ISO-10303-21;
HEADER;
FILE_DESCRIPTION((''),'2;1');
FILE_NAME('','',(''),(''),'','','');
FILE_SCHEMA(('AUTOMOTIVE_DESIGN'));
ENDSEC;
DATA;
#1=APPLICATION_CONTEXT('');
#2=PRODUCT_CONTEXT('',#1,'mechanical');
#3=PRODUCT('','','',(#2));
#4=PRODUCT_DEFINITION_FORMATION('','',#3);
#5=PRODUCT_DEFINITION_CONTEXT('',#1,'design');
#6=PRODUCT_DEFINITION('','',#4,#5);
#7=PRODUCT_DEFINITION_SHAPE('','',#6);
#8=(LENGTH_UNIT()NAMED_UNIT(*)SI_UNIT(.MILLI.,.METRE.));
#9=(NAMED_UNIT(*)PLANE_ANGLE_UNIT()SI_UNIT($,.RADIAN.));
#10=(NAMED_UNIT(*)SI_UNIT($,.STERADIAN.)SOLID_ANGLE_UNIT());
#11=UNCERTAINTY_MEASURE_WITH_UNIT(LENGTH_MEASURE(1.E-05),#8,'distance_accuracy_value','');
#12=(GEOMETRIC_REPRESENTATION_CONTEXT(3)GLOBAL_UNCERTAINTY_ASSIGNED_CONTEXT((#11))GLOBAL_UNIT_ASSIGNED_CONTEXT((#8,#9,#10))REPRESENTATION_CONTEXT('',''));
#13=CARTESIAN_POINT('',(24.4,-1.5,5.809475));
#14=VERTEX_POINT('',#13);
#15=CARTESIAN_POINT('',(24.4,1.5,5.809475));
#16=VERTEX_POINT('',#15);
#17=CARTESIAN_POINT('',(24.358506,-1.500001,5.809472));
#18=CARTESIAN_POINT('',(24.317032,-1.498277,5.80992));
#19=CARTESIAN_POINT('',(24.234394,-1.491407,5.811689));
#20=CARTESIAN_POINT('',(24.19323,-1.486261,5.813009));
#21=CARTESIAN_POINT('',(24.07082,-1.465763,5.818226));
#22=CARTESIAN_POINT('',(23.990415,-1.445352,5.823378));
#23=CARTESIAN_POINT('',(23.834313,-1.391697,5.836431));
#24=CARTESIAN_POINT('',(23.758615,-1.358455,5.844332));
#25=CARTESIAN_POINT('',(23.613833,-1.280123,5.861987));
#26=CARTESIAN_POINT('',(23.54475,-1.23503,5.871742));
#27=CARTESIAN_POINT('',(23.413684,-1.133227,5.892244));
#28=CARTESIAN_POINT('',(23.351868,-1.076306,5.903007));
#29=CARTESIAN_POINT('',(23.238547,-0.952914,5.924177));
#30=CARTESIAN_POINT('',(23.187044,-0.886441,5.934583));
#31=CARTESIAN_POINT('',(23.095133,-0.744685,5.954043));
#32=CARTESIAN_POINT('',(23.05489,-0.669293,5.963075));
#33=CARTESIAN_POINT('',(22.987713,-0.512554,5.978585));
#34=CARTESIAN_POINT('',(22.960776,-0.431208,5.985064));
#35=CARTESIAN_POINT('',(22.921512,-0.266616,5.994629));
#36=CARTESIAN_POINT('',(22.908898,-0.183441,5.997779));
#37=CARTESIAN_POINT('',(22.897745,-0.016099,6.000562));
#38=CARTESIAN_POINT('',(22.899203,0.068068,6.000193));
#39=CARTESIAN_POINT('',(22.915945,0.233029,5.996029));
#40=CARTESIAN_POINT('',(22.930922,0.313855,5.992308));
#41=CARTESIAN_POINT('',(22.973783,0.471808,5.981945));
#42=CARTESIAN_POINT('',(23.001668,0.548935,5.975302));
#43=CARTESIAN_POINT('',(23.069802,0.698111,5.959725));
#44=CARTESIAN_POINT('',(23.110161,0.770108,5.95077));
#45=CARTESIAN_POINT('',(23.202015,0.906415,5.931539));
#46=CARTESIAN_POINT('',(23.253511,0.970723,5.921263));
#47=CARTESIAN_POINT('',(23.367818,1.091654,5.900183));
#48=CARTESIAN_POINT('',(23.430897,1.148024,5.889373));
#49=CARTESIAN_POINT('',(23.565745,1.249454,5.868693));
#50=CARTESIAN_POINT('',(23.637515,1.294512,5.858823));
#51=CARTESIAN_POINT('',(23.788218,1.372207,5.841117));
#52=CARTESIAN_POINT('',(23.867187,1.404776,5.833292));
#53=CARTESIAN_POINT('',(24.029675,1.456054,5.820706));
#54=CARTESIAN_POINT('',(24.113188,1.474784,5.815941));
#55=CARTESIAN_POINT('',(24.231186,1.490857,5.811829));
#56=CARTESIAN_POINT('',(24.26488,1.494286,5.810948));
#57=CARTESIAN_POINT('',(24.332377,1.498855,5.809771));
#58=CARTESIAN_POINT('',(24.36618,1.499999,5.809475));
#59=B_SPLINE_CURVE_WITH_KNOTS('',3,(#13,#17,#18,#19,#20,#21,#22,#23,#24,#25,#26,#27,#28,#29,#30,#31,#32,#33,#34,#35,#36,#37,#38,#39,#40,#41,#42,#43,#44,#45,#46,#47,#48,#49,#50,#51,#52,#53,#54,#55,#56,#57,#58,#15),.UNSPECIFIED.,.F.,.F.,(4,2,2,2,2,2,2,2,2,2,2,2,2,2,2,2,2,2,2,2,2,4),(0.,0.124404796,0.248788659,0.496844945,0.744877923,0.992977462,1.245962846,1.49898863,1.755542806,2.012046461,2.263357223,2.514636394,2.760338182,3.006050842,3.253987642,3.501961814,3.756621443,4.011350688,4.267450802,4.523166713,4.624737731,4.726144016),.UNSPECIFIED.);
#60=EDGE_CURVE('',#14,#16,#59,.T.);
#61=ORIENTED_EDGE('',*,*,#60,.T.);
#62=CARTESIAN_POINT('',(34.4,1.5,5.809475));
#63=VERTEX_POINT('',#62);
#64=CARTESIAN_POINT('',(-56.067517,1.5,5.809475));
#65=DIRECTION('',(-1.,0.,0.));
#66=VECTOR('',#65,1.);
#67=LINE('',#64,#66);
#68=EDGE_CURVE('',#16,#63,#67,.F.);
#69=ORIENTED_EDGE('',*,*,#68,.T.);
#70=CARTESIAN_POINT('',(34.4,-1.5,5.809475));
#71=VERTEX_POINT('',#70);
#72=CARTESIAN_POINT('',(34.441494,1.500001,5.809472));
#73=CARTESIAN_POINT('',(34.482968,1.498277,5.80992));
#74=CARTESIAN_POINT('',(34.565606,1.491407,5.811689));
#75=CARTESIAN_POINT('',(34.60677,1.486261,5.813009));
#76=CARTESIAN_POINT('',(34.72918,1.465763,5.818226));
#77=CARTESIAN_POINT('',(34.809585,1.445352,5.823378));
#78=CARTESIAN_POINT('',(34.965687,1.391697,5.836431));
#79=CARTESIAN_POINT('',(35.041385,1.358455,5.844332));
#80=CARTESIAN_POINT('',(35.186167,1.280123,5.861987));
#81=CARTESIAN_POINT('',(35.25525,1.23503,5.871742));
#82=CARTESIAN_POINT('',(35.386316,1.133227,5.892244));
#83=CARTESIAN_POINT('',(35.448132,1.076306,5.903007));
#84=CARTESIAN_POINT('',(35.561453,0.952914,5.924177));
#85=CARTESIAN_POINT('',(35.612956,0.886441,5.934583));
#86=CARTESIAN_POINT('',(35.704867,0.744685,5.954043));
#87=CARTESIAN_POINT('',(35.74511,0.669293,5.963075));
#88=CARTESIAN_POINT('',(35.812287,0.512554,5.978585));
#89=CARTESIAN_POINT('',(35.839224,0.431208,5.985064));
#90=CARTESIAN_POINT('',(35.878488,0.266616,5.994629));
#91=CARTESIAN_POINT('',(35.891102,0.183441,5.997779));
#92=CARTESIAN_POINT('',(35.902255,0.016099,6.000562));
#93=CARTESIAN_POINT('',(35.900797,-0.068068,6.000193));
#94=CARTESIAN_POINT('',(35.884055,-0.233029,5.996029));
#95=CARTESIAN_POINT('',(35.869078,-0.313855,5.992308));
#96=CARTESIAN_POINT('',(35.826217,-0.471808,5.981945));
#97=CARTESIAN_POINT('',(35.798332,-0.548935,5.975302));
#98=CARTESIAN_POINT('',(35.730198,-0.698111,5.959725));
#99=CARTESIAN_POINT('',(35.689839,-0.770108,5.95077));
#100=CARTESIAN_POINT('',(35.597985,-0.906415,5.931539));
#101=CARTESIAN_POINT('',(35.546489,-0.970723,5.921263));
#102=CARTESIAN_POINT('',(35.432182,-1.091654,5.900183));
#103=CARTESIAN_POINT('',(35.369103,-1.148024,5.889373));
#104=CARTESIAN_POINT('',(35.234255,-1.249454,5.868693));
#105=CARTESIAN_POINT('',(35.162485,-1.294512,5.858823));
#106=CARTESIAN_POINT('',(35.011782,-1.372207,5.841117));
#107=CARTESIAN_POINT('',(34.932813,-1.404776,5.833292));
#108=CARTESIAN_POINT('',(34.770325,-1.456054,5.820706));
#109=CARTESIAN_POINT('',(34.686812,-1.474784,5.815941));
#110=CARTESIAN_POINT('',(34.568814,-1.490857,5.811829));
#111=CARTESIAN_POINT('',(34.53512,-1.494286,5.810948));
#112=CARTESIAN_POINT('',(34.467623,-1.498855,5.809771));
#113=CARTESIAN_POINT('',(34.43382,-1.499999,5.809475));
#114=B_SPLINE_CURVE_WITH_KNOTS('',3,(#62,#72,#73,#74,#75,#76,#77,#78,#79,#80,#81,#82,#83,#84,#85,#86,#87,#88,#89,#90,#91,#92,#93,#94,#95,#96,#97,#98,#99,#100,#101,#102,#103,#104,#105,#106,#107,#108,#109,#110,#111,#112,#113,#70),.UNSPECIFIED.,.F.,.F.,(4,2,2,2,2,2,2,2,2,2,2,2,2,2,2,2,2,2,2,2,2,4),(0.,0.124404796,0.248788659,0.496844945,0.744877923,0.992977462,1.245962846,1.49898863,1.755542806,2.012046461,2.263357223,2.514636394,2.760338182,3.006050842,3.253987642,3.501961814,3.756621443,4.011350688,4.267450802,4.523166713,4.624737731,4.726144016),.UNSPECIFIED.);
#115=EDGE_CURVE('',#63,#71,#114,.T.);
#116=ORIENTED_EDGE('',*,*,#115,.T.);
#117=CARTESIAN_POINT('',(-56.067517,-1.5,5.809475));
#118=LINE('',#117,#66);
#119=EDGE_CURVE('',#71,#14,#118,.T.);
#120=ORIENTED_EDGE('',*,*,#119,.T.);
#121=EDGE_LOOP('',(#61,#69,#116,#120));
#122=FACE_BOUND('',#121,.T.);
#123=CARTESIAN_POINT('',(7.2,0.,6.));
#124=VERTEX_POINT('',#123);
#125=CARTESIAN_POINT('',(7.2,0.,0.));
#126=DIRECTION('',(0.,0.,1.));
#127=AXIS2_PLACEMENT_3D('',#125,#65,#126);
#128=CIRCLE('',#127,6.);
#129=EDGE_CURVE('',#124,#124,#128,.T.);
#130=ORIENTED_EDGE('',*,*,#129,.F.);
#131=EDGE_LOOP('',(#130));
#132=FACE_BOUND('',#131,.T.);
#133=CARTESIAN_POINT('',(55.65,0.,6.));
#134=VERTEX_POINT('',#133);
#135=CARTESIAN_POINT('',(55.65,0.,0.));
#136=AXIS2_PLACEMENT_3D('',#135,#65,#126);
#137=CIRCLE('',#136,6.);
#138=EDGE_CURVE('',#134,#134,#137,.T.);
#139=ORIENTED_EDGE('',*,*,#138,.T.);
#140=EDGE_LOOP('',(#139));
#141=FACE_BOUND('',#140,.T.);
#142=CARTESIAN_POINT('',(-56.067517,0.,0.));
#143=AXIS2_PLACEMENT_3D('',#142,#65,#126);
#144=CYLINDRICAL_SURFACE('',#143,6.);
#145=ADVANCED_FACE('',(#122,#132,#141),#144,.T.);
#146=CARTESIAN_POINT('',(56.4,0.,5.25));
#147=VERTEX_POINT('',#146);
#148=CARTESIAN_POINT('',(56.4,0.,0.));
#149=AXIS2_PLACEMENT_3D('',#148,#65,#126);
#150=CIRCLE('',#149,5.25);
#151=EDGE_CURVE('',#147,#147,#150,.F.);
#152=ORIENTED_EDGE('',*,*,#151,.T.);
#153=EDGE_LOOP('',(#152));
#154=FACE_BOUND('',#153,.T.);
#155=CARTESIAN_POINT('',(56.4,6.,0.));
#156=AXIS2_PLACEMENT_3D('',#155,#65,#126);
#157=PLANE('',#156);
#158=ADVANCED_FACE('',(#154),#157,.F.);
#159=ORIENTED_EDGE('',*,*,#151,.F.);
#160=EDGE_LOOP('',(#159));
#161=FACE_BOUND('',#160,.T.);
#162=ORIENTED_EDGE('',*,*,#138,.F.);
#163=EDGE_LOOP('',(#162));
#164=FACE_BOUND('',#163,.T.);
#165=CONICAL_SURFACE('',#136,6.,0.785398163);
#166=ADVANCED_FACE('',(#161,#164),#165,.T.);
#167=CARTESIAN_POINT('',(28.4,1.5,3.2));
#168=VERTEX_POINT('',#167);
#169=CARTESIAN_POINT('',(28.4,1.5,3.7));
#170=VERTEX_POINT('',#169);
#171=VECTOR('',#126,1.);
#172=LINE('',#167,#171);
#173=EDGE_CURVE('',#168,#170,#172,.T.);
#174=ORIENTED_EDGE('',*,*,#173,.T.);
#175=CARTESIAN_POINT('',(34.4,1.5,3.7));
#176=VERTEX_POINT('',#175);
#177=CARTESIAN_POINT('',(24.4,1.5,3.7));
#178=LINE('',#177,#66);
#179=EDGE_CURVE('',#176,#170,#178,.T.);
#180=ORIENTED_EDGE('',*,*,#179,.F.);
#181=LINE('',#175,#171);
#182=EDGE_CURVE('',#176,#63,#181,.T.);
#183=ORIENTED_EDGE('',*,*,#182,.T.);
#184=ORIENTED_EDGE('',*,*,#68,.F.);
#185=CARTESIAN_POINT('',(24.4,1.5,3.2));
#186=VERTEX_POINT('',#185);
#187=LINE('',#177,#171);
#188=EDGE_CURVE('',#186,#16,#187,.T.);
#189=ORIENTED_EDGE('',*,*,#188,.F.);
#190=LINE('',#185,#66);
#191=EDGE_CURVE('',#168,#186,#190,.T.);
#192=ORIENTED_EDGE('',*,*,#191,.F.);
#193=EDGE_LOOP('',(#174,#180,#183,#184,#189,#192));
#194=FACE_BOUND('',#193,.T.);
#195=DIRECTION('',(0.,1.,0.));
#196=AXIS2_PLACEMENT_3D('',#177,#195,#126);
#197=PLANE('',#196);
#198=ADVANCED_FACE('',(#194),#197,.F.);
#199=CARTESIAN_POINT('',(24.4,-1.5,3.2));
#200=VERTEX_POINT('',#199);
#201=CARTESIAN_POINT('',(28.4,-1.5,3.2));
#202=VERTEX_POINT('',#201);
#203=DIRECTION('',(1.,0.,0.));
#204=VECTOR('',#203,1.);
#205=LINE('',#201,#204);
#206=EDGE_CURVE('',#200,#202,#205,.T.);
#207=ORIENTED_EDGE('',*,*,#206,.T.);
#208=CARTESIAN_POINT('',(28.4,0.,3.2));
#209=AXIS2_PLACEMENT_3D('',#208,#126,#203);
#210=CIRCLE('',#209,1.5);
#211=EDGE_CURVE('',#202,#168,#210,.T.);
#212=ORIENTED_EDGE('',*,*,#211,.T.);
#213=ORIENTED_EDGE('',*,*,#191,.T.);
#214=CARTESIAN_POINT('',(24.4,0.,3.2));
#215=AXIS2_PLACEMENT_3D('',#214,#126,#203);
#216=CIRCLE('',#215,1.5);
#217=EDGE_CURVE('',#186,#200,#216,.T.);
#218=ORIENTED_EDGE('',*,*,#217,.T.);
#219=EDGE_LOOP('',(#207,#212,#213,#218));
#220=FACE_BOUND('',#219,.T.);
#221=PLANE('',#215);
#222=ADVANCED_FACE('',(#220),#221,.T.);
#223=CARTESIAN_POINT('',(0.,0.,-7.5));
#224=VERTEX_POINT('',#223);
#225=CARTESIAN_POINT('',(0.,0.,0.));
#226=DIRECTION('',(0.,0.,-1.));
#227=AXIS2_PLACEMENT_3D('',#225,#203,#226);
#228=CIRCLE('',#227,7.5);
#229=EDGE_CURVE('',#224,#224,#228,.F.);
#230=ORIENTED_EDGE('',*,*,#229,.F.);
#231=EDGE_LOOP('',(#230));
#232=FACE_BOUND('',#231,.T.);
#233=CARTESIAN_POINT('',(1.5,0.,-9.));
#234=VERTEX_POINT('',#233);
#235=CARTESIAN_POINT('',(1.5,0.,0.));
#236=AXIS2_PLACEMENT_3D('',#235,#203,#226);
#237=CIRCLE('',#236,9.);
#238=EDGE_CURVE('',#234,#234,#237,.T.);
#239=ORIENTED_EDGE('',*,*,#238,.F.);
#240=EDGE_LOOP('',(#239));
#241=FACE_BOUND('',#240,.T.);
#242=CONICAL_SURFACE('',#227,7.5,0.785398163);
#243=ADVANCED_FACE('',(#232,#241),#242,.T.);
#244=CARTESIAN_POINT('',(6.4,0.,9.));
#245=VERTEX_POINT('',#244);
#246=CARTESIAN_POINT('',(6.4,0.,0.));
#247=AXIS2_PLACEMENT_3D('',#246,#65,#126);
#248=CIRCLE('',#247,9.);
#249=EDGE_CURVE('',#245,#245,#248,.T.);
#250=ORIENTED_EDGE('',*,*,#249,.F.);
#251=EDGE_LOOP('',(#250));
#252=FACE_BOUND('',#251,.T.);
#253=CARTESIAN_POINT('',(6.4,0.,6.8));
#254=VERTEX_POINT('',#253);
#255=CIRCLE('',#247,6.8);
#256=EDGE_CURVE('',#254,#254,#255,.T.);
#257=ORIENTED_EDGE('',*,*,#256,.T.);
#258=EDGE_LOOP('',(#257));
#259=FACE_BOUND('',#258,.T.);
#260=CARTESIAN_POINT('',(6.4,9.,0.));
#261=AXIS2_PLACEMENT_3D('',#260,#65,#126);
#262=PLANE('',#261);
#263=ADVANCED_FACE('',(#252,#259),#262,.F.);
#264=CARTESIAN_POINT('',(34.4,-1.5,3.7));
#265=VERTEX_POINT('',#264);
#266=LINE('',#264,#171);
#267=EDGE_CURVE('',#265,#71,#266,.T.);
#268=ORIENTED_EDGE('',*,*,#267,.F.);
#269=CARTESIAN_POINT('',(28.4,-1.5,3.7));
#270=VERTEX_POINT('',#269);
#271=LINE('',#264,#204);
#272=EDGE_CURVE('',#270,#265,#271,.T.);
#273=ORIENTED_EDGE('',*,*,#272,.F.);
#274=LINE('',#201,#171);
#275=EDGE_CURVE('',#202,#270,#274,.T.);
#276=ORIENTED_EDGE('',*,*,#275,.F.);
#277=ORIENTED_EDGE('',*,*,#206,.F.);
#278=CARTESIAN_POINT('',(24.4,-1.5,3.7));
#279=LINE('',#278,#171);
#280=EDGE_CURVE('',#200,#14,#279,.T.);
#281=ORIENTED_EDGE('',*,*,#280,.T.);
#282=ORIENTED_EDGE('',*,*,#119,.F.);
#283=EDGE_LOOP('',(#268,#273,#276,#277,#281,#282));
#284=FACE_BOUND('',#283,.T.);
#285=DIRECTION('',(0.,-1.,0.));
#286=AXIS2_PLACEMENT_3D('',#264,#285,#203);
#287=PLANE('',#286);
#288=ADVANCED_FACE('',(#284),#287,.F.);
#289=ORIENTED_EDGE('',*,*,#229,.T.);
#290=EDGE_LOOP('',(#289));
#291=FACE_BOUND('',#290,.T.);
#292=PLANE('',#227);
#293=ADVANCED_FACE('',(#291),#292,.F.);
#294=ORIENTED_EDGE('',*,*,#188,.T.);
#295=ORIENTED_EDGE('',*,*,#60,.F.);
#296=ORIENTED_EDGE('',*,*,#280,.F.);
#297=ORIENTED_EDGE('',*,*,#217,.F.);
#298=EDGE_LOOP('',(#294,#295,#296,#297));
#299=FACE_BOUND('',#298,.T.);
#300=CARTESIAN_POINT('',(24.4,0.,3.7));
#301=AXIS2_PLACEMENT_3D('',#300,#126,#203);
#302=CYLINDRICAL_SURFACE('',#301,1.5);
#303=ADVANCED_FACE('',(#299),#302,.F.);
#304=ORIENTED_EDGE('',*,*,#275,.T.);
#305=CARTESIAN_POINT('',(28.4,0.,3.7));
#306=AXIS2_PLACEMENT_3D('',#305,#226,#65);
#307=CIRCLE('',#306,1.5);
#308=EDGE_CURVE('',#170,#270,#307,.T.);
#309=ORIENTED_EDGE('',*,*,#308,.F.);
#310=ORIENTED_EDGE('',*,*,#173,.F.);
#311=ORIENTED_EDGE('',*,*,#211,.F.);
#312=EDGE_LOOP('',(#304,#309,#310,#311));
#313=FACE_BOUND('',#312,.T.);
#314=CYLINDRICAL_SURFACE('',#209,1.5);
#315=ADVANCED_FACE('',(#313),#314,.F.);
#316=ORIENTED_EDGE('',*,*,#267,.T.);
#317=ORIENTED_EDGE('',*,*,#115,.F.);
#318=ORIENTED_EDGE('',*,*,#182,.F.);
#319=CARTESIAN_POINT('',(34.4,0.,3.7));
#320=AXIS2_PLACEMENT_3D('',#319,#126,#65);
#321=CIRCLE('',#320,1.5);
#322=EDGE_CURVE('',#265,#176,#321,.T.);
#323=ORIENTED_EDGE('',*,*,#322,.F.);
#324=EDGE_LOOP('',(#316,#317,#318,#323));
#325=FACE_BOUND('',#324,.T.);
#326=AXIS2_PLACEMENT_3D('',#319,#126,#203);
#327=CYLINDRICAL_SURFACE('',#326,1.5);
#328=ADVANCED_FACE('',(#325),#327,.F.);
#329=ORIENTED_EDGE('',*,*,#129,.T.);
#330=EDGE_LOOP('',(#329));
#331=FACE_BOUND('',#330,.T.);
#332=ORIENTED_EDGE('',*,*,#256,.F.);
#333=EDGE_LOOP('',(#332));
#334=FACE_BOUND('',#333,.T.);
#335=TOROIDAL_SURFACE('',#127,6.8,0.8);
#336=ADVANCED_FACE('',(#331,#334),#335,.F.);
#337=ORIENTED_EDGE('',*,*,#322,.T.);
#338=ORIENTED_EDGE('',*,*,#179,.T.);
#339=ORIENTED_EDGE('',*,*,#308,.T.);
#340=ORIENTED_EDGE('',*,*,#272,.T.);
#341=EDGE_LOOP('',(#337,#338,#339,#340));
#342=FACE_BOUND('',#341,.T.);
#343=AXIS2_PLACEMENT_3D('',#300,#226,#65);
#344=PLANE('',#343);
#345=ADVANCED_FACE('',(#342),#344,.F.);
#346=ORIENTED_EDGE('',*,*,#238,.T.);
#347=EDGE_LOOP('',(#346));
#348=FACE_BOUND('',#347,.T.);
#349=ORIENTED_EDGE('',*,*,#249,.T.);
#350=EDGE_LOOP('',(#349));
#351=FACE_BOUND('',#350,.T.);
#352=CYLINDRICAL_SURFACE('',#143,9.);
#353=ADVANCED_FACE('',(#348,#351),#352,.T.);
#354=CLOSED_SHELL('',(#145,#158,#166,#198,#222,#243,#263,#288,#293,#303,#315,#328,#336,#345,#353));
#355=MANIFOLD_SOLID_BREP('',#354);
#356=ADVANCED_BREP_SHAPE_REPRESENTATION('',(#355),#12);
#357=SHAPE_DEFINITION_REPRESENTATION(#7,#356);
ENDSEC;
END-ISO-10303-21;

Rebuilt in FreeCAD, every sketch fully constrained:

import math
import FreeCAD as App
import Part
import Sketcher


def edges_at(feature, points):
    """Names of the edges that pass closest to the given points."""
    edges = feature.Shape.Edges
    near = lambda p: min(range(len(edges)), key=lambda i: edges[i].distToShape(Part.Vertex(*p))[0])
    return sorted({f"Edge{near(p) + 1}" for p in points})

doc = App.newDocument("Part")
body = doc.addObject("PartDesign::Body", "Body")

# Sketch on XY plane
sketch1 = body.newObject("Sketcher::SketchObject", "Sketch")
sketch1.AttachmentSupport = (doc.getObject("XY_Plane"), [""])
sketch1.MapMode = "FlatFace"
sketch1.addGeometry(Part.LineSegment(App.Vector(0, 9, 0), App.Vector(0, 0, 0)), False)
sketch1.addGeometry(Part.LineSegment(App.Vector(0, 0, 0), App.Vector(56.4, 0, 0)), False)
sketch1.addGeometry(Part.LineSegment(App.Vector(56.4, 0, 0), App.Vector(56.4, 6, 0)), False)
sketch1.addGeometry(Part.LineSegment(App.Vector(56.4, 6, 0), App.Vector(7.2, 6, 0)), False)
sketch1.addGeometry(Part.ArcOfCircle(Part.Circle(App.Vector(7.2, 6.8, 0), App.Vector(0, 0, 1), 0.8), math.radians(180), math.radians(270)), False)
sketch1.addGeometry(Part.LineSegment(App.Vector(6.4, 6.8, 0), App.Vector(6.4, 9, 0)), False)
sketch1.addGeometry(Part.LineSegment(App.Vector(6.4, 9, 0), App.Vector(0, 9, 0)), False)
sketch1.addConstraint(Sketcher.Constraint("Coincident", 0, 2, 1, 1))
sketch1.addConstraint(Sketcher.Constraint("Coincident", 1, 2, 2, 1))
sketch1.addConstraint(Sketcher.Constraint("Coincident", 2, 2, 3, 1))
sketch1.addConstraint(Sketcher.Constraint("Tangent", 3, 2, 4, 2))
sketch1.addConstraint(Sketcher.Constraint("Tangent", 4, 1, 5, 1))
sketch1.addConstraint(Sketcher.Constraint("Coincident", 5, 2, 6, 1))
sketch1.addConstraint(Sketcher.Constraint("Coincident", 6, 2, 0, 1))
sketch1.addConstraint(Sketcher.Constraint("Vertical", 0))
sketch1.addConstraint(Sketcher.Constraint("Horizontal", 1))
sketch1.addConstraint(Sketcher.Constraint("Vertical", 2))
sketch1.addConstraint(Sketcher.Constraint("Horizontal", 3))
sketch1.addConstraint(Sketcher.Constraint("Vertical", 5))
sketch1.addConstraint(Sketcher.Constraint("Horizontal", 6))
sketch1.addConstraint(Sketcher.Constraint("Coincident", 0, 2, -1, 1))
sketch1.addConstraint(Sketcher.Constraint("Radius", 4, 0.8))
sketch1.addConstraint(Sketcher.Constraint("DistanceY", 0, 2, 0, 1, 9.0))
sketch1.addConstraint(Sketcher.Constraint("DistanceY", 2, 1, 2, 2, 6.0))
sketch1.addConstraint(Sketcher.Constraint("DistanceX", 1, 1, 1, 2, 56.4))
sketch1.addConstraint(Sketcher.Constraint("DistanceX", 3, 2, 3, 1, 49.2))
revolution = body.newObject("PartDesign::Revolution", "Revolution")
revolution.Profile = sketch1
revolution.ReferenceAxis = (sketch1, ["H_Axis"])
revolution.Angle = 360
doc.recompute()

chamfer = body.newObject("PartDesign::Chamfer", "Chamfer")
chamfer.Base = (revolution, edges_at(revolution, [(0, 0, -9)]))
chamfer.Size = 1.5

# Sketch on XY plane
sketch2 = body.newObject("Sketcher::SketchObject", "Sketch001")
sketch2.AttachmentSupport = (doc.getObject("XY_Plane"), [""])
sketch2.MapMode = "FlatFace"
sketch2.AttachmentOffset = App.Placement(App.Vector(0, 0, 6), App.Rotation())
sketch2.addGeometry(Part.LineSegment(App.Vector(34.4, 1.5, 0), App.Vector(24.4, 1.5, 0)), False)
sketch2.addGeometry(Part.ArcOfCircle(Part.Circle(App.Vector(24.4, 0, 0), App.Vector(0, 0, 1), 1.5), math.radians(90), math.radians(270)), False)
sketch2.addGeometry(Part.LineSegment(App.Vector(24.4, -1.5, 0), App.Vector(34.4, -1.5, 0)), False)
sketch2.addGeometry(Part.ArcOfCircle(Part.Circle(App.Vector(34.4, 0, 0), App.Vector(0, 0, 1), 1.5), math.radians(-90), math.radians(90)), False)
sketch2.addConstraint(Sketcher.Constraint("Tangent", 0, 2, 1, 1))
sketch2.addConstraint(Sketcher.Constraint("Tangent", 1, 2, 2, 1))
sketch2.addConstraint(Sketcher.Constraint("Tangent", 2, 2, 3, 1))
sketch2.addConstraint(Sketcher.Constraint("Tangent", 3, 2, 0, 1))
sketch2.addConstraint(Sketcher.Constraint("Horizontal", 0))
sketch2.addConstraint(Sketcher.Constraint("Horizontal", 2))
sketch2.addConstraint(Sketcher.Constraint("PointOnObject", 1, 3, -1))
sketch2.addConstraint(Sketcher.Constraint("Radius", 1, 1.5))
sketch2.addConstraint(Sketcher.Constraint("DistanceX", 0, 2, 0, 1, 10.0))
sketch2.addConstraint(Sketcher.Constraint("DistanceX", -1, 1, 1, 3, 24.4))
pocket1 = body.newObject("PartDesign::Pocket", "Pocket")
pocket1.Profile = sketch2
pocket1.Length = 2.3

# Sketch on XY plane
sketch3 = body.newObject("Sketcher::SketchObject", "Sketch002")
sketch3.AttachmentSupport = (doc.getObject("XY_Plane"), [""])
sketch3.MapMode = "FlatFace"
sketch3.AttachmentOffset = App.Placement(App.Vector(0, 0, 6), App.Rotation())
sketch3.addGeometry(Part.LineSegment(App.Vector(28.4, 1.5, 0), App.Vector(24.4, 1.5, 0)), False)
sketch3.addGeometry(Part.ArcOfCircle(Part.Circle(App.Vector(24.4, 0, 0), App.Vector(0, 0, 1), 1.5), math.radians(90), math.radians(270)), False)
sketch3.addGeometry(Part.LineSegment(App.Vector(24.4, -1.5, 0), App.Vector(28.4, -1.5, 0)), False)
sketch3.addGeometry(Part.ArcOfCircle(Part.Circle(App.Vector(28.4, 0, 0), App.Vector(0, 0, 1), 1.5), math.radians(-90), math.radians(90)), False)
sketch3.addConstraint(Sketcher.Constraint("Tangent", 0, 2, 1, 1))
sketch3.addConstraint(Sketcher.Constraint("Tangent", 1, 2, 2, 1))
sketch3.addConstraint(Sketcher.Constraint("Tangent", 2, 2, 3, 1))
sketch3.addConstraint(Sketcher.Constraint("Tangent", 3, 2, 0, 1))
sketch3.addConstraint(Sketcher.Constraint("Horizontal", 0))
sketch3.addConstraint(Sketcher.Constraint("Horizontal", 2))
sketch3.addConstraint(Sketcher.Constraint("PointOnObject", 1, 3, -1))
sketch3.addConstraint(Sketcher.Constraint("Radius", 1, 1.5))
sketch3.addConstraint(Sketcher.Constraint("DistanceX", 0, 2, 0, 1, 4.0))
sketch3.addConstraint(Sketcher.Constraint("DistanceX", -1, 1, 1, 3, 24.4))
pocket2 = body.newObject("PartDesign::Pocket", "Pocket001")
pocket2.Profile = sketch3
pocket2.Length = 2.8
doc.recompute()

chamfer2 = body.newObject("PartDesign::Chamfer", "Chamfer001")
chamfer2.Base = (pocket2, edges_at(pocket2, [(56.4, 0, -6)]))
chamfer2.Size = 0.75

doc.recompute()
